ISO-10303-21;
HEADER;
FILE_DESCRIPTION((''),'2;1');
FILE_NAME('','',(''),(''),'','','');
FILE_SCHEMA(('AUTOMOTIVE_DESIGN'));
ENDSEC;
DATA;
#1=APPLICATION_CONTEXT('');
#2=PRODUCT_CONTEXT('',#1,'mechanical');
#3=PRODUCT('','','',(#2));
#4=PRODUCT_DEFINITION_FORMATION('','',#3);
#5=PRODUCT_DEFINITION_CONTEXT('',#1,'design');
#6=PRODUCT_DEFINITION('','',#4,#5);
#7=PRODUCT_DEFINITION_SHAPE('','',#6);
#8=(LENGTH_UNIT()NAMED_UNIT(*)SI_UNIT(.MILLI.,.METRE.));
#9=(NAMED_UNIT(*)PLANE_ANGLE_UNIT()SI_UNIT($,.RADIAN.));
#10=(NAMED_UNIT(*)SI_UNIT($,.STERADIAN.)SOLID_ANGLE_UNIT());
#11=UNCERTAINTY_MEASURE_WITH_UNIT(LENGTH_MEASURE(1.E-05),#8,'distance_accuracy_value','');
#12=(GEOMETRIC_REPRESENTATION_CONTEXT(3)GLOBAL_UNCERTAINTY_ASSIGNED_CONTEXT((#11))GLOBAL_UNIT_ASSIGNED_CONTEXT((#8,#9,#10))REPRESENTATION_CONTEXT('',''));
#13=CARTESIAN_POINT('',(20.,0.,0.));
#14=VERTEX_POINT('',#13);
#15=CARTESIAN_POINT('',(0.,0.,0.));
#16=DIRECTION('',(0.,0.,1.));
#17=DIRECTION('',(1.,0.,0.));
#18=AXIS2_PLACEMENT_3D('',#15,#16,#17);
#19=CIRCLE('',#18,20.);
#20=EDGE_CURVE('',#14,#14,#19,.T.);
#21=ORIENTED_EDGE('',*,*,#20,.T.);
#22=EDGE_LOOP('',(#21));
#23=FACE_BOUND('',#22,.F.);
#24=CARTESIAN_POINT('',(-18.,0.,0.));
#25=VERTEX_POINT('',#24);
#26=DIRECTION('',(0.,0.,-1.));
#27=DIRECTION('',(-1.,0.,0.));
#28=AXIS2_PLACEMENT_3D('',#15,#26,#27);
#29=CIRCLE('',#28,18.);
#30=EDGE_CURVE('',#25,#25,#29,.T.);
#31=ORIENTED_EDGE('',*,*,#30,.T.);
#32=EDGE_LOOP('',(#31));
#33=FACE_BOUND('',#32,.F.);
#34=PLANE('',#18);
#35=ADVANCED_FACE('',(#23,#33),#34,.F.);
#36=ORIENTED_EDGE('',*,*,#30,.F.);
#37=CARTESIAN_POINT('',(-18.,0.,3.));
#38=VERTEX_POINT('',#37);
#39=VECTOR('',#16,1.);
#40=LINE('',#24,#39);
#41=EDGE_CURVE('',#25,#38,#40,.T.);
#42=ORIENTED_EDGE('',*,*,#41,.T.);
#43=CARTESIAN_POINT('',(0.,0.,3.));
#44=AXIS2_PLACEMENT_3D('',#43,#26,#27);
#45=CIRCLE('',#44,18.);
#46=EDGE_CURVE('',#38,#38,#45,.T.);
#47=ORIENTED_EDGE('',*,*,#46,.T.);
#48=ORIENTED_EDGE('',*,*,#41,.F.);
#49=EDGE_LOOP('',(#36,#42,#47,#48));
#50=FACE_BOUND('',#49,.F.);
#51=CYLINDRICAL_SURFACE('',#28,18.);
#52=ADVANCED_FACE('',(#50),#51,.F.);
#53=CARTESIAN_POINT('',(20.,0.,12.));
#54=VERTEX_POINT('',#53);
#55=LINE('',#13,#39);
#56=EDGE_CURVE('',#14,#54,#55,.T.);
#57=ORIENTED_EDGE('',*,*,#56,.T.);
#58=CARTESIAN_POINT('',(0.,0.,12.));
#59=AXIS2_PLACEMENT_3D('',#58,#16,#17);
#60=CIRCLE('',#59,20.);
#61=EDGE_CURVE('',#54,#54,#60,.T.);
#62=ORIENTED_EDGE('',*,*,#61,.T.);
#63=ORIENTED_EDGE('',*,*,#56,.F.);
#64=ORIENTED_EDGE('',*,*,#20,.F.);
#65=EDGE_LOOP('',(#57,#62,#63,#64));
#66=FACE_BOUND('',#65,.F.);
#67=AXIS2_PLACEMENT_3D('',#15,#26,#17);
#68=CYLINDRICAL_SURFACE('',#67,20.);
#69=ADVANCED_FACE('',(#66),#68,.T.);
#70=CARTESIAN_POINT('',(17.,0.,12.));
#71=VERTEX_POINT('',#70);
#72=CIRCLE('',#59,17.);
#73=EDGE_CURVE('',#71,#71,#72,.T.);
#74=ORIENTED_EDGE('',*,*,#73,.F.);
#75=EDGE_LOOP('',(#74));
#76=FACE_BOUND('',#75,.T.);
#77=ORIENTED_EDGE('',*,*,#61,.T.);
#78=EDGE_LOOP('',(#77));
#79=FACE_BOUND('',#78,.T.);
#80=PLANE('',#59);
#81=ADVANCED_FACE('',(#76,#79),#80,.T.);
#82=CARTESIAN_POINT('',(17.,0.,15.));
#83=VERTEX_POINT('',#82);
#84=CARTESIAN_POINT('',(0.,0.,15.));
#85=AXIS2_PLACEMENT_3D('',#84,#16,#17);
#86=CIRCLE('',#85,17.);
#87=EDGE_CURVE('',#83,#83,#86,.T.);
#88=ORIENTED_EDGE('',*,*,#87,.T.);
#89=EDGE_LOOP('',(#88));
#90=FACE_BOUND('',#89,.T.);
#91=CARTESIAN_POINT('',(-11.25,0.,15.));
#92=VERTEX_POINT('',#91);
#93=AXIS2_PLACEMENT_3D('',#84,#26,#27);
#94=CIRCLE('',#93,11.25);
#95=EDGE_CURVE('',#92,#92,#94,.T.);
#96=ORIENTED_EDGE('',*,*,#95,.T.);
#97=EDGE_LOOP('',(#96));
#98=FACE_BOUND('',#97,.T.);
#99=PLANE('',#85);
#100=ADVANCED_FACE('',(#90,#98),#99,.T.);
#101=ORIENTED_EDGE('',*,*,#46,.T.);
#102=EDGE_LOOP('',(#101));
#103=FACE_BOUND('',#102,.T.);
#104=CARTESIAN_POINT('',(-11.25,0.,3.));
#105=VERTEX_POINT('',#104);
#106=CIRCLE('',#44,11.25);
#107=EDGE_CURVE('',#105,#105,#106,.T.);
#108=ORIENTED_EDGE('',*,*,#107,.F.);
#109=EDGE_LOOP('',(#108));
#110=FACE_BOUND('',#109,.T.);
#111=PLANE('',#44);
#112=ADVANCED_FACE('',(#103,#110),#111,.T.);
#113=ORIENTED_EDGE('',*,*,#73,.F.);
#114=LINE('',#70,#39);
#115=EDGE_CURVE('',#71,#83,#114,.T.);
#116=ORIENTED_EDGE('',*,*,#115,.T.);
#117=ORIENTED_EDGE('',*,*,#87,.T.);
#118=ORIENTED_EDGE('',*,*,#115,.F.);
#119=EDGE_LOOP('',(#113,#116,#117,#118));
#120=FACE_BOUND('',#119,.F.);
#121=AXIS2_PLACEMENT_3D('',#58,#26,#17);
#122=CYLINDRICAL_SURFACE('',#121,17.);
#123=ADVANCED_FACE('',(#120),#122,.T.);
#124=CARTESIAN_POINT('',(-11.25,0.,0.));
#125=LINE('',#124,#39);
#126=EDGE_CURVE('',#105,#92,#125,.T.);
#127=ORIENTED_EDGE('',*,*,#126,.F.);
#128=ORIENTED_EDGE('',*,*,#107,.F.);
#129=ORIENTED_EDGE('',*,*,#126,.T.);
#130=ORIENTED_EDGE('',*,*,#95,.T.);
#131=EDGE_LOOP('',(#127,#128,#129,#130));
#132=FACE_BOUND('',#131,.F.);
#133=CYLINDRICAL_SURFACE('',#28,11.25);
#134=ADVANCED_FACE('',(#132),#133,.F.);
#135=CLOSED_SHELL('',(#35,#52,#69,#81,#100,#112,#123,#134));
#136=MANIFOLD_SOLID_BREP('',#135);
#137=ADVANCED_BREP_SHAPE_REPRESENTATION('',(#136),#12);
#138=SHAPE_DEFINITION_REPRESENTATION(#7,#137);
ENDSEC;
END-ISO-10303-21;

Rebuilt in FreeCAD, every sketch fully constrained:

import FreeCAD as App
import Part
import Sketcher

V = App.Vector
Q = App.Units.Quantity

doc = App.newDocument("Part")
body = doc.addObject("PartDesign::Body", "Body")

# Sketch on XY plane
sketch1 = body.newObject("Sketcher::SketchObject", "Sketch")
sketch1.AttachmentSupport = (doc.getObject("XY_Plane"), [""])
sketch1.MapMode = "FlatFace"
sketch1.addGeometry(Part.Circle(V(0, 0, 0), V(0, 0, 1), 20), False)
sketch1.addConstraint([
    Sketcher.Constraint("Coincident", 0, 3, -1, 1),
    Sketcher.Constraint("Diameter", 0, Q("40 mm")),
])
pad1 = body.newObject("PartDesign::Pad", "Pad")
pad1.Profile = sketch1
pad1.Length = 18

# Sketch on XY plane
sketch2 = body.newObject("Sketcher::SketchObject", "Sketch001")
sketch2.AttachmentSupport = (doc.getObject("XY_Plane"), [""])
sketch2.MapMode = "FlatFace"
sketch2.AttachmentOffset = App.Placement(V(0, 0, 15), App.Rotation())
sketch2.addGeometry(Part.Circle(V(0, 0, 0), V(0, 0, 1), 20), False)
sketch2.addConstraint([
    Sketcher.Constraint("Coincident", 0, 3, -1, 1),
    Sketcher.Constraint("Diameter", 0, Q("40 mm")),
])
pocket1 = body.newObject("PartDesign::Pocket", "Pocket")
pocket1.Profile = sketch2
pocket1.Length = 3
pocket1.Reversed = True

# Sketch on XY plane
sketch3 = body.newObject("Sketcher::SketchObject", "Sketch002")
sketch3.AttachmentSupport = (doc.getObject("XY_Plane"), [""])
sketch3.MapMode = "FlatFace"
sketch3.AttachmentOffset = App.Placement(V(0, 0, 12), App.Rotation())
sketch3.addGeometry([
    Part.Circle(V(0, 0, 0), V(0, 0, 1), 20),
    Part.Circle(V(0, 0, 0), V(0, 0, 1), 17),
], False)
sketch3.addConstraint([
    Sketcher.Constraint("Coincident", 0, 3, -1, 1),
    Sketcher.Constraint("Coincident", 1, 3, -1, 1),
    Sketcher.Constraint("Diameter", 0, Q("40 mm")),
    Sketcher.Constraint("Diameter", 1, Q("34 mm")),
])
pocket2 = body.newObject("PartDesign::Pocket", "Pocket001")
pocket2.Profile = sketch3
pocket2.Length = 3
pocket2.Reversed = True

# Sketch on XY plane
sketch4 = body.newObject("Sketcher::SketchObject", "Sketch003")
sketch4.AttachmentSupport = (doc.getObject("XY_Plane"), [""])
sketch4.MapMode = "FlatFace"
sketch4.addGeometry(Part.Circle(V(0, 0, 0), V(0, 0, 1), 11), False)
sketch4.addConstraint([
    Sketcher.Constraint("Coincident", 0, 3, -1, 1),
    Sketcher.Constraint("Diameter", 0, Q("22.5 mm")),
])
pocket3 = body.newObject("PartDesign::Pocket", "Pocket002")
pocket3.Profile = sketch4
pocket3.Length = 50
pocket3.Reversed = True

# Sketch on XY plane
sketch5 = body.newObject("Sketcher::SketchObject", "Sketch004")
sketch5.AttachmentSupport = (doc.getObject("XY_Plane"), [""])
sketch5.MapMode = "FlatFace"
sketch5.addGeometry(Part.Circle(V(0, 0, 0), V(0, 0, 1), 18), False)
sketch5.addConstraint([
    Sketcher.Constraint("Coincident", 0, 3, -1, 1),
    Sketcher.Constraint("Diameter", 0, Q("36 mm")),
])
pocket4 = body.newObject("PartDesign::Pocket", "Pocket003")
pocket4.Profile = sketch5
pocket4.Length = 3
pocket4.Reversed = True

doc.recompute()
